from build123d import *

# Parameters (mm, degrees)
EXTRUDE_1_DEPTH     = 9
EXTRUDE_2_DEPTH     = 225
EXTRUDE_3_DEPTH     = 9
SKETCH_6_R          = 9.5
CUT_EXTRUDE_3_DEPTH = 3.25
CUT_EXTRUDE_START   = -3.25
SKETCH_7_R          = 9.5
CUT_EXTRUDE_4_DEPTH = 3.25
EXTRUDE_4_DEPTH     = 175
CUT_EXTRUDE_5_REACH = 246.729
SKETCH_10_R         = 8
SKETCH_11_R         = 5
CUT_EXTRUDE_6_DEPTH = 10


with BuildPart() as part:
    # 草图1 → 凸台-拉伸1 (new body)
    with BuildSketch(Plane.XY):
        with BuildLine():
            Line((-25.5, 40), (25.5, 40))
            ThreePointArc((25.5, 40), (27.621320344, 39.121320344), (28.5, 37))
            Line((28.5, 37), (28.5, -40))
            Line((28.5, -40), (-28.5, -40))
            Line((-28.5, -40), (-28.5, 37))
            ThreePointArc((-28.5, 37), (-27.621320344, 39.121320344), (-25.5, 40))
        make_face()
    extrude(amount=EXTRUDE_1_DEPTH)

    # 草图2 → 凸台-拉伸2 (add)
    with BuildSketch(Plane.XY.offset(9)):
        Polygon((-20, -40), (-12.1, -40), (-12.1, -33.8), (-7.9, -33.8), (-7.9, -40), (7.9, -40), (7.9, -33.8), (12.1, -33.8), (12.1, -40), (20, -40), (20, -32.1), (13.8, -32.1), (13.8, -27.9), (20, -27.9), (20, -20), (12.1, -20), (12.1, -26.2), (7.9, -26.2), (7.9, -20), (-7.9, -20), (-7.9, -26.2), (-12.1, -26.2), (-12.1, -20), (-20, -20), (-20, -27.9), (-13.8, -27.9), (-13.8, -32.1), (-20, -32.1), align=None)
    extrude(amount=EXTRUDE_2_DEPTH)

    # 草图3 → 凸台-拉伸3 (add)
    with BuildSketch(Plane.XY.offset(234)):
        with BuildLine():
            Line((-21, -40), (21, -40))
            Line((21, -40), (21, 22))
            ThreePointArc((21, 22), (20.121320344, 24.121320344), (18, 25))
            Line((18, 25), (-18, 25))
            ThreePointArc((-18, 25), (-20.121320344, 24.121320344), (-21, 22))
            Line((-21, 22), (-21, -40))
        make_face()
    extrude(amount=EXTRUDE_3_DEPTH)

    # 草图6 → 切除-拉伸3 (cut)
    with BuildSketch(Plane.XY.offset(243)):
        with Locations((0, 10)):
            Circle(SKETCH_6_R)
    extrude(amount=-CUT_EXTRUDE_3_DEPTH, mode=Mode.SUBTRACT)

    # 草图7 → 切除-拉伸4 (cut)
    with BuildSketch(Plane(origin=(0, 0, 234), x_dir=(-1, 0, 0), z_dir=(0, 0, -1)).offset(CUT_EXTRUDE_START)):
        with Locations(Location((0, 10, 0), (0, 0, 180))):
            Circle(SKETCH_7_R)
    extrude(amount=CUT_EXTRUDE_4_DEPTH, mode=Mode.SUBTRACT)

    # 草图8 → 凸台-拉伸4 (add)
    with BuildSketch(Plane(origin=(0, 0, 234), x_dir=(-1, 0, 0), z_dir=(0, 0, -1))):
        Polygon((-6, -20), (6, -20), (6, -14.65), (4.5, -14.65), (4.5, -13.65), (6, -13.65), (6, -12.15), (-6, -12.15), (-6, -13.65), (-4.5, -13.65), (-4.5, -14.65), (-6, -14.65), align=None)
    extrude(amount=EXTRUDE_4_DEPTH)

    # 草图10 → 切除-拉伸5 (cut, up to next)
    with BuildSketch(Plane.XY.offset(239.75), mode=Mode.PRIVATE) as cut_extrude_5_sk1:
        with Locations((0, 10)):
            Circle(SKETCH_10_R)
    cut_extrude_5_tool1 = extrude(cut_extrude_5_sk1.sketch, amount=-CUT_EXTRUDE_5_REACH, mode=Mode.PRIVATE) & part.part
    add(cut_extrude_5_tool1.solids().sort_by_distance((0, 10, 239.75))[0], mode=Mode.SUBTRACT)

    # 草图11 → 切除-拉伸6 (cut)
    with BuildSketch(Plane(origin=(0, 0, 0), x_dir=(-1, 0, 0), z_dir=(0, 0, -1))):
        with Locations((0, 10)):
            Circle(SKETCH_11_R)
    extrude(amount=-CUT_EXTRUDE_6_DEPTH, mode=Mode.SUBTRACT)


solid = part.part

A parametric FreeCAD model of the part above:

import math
import FreeCAD as App
import Part
import Sketcher
from FreeCAD import Vector


def add_polygon(sketch, points):
    """Adds a closed chain of lines whose ends are joined by coincident constraints."""
    first, n = sketch.GeometryCount, len(points)
    for a, b in zip(points, points[1:] + points[:1]):
        sketch.addGeometry(Part.LineSegment(App.Vector(*a, 0), App.Vector(*b, 0)), False)
    for i in range(n):
        sketch.addConstraint(Sketcher.Constraint("Coincident", first + i, 2, first + (i + 1) % n, 1))

doc = App.newDocument("Part")
body = doc.addObject("PartDesign::Body", "Body")

# Sketch on XY plane
sketch1 = doc.addObject("Sketcher::SketchObject", "Sketch")
body.addObject(sketch1)
sketch1.AttachmentSupport = (doc.XY_Plane, [""])
sketch1.MapMode = "FlatFace"
sketch1.addGeometry(Part.LineSegment(Vector(25.5, 40, 0), Vector(-25.5, 40, 0)), False)
sketch1.addGeometry(Part.ArcOfCircle(Part.Circle(Vector(-25.5, 37, 0), Vector(0, 0, 1), 3), math.radians(90), math.radians(180)), False)
sketch1.addGeometry(Part.LineSegment(Vector(-28.5, 37, 0), Vector(-28.5, -40, 0)), False)
sketch1.addGeometry(Part.LineSegment(Vector(-28.5, -40, 0), Vector(28.5, -40, 0)), False)
sketch1.addGeometry(Part.LineSegment(Vector(28.5, -40, 0), Vector(28.5, 37, 0)), False)
sketch1.addGeometry(Part.ArcOfCircle(Part.Circle(Vector(25.5, 37, 0), Vector(0, 0, 1), 3), math.radians(0), math.radians(90)), False)
sketch1.addConstraint(Sketcher.Constraint("Tangent", 0, 2, 1, 1))
sketch1.addConstraint(Sketcher.Constraint("Tangent", 1, 2, 2, 1))
sketch1.addConstraint(Sketcher.Constraint("Coincident", 2, 2, 3, 1))
sketch1.addConstraint(Sketcher.Constraint("Coincident", 3, 2, 4, 1))
sketch1.addConstraint(Sketcher.Constraint("Tangent", 4, 2, 5, 1))
sketch1.addConstraint(Sketcher.Constraint("Tangent", 5, 2, 0, 1))
sketch1.addConstraint(Sketcher.Constraint("Horizontal", 0))
sketch1.addConstraint(Sketcher.Constraint("Vertical", 2))
sketch1.addConstraint(Sketcher.Constraint("Horizontal", 3))
sketch1.addConstraint(Sketcher.Constraint("Vertical", 4))
sketch1.addConstraint(Sketcher.Constraint("Equal", 1, 5))
sketch1.addConstraint(Sketcher.Constraint("Radius", 1, 3.0))
sketch1.addConstraint(Sketcher.Constraint("DistanceX", 0, 2, 0, 1, 51.0))
sketch1.addConstraint(Sketcher.Constraint("DistanceY", 2, 2, 2, 1, 77.0))
sketch1.addConstraint(Sketcher.Constraint("DistanceY", -1, 1, 1, 3, 37.0))
sketch1.addConstraint(Sketcher.Constraint("DistanceX", 1, 3, -1, 1, 25.5))
pad1 = doc.addObject("PartDesign::Pad", "Pad")
body.addObject(pad1)
pad1.Profile = sketch1
pad1.Length = 9

# Sketch on XY plane
sketch2 = doc.addObject("Sketcher::SketchObject", "Sketch001")
body.addObject(sketch2)
sketch2.AttachmentSupport = (doc.XY_Plane, [""])
sketch2.MapMode = "FlatFace"
sketch2.AttachmentOffset = App.Placement(Vector(0, 0, 9), App.Rotation())
add_polygon(sketch2, [(-20, -40), (-12.1, -40), (-12.1, -33.8), (-7.9, -33.8), (-7.9, -40), (7.9, -40), (7.9, -33.8), (12.1, -33.8), (12.1, -40), (20, -40), (20, -32.1), (13.8, -32.1), (13.8, -27.9), (20, -27.9), (20, -20), (12.1, -20), (12.1, -26.2), (7.9, -26.2), (7.9, -20), (-7.9, -20), (-7.9, -26.2), (-12.1, -26.2), (-12.1, -20), (-20, -20), (-20, -27.9), (-13.8, -27.9), (-13.8, -32.1), (-20, -32.1)])  # lines 0-27
sketch2.addConstraint(Sketcher.Constraint("Horizontal", 0))
sketch2.addConstraint(Sketcher.Constraint("Vertical", 1))
sketch2.addConstraint(Sketcher.Constraint("Horizontal", 2))
sketch2.addConstraint(Sketcher.Constraint("Vertical", 3))
sketch2.addConstraint(Sketcher.Constraint("Horizontal", 4))
sketch2.addConstraint(Sketcher.Constraint("Vertical", 5))
sketch2.addConstraint(Sketcher.Constraint("Horizontal", 6))
sketch2.addConstraint(Sketcher.Constraint("Vertical", 7))
sketch2.addConstraint(Sketcher.Constraint("Horizontal", 8))
sketch2.addConstraint(Sketcher.Constraint("Vertical", 9))
sketch2.addConstraint(Sketcher.Constraint("Horizontal", 10))
sketch2.addConstraint(Sketcher.Constraint("Vertical", 11))
sketch2.addConstraint(Sketcher.Constraint("Horizontal", 12))
sketch2.addConstraint(Sketcher.Constraint("Vertical", 13))
sketch2.addConstraint(Sketcher.Constraint("Horizontal", 14))
sketch2.addConstraint(Sketcher.Constraint("Vertical", 15))
sketch2.addConstraint(Sketcher.Constraint("Horizontal", 16))
sketch2.addConstraint(Sketcher.Constraint("Vertical", 17))
sketch2.addConstraint(Sketcher.Constraint("Horizontal", 18))
sketch2.addConstraint(Sketcher.Constraint("Vertical", 19))
sketch2.addConstraint(Sketcher.Constraint("Horizontal", 20))
sketch2.addConstraint(Sketcher.Constraint("Vertical", 21))
sketch2.addConstraint(Sketcher.Constraint("Horizontal", 22))
sketch2.addConstraint(Sketcher.Constraint("Vertical", 23))
sketch2.addConstraint(Sketcher.Constraint("Horizontal", 24))
sketch2.addConstraint(Sketcher.Constraint("Vertical", 25))
sketch2.addConstraint(Sketcher.Constraint("Horizontal", 26))
sketch2.addConstraint(Sketcher.Constraint("Vertical", 27))
sketch2.addConstraint(Sketcher.Constraint("Symmetric", 2, 2, 5, 2, -2))
sketch2.addConstraint(Sketcher.Constraint("Symmetric", 0, 2, 7, 2, -2))
sketch2.addConstraint(Sketcher.Constraint("Symmetric", 16, 2, 19, 2, -2))
sketch2.addConstraint(Sketcher.Constraint("Symmetric", 14, 2, 21, 2, -2))
sketch2.addConstraint(Sketcher.Constraint("Symmetric", 12, 2, 23, 2, -2))
sketch2.addConstraint(Sketcher.Constraint("Symmetric", 10, 2, 25, 2, -2))
sketch2.addConstraint(Sketcher.Constraint("Horizontal", 0, 2, 3, 2))
sketch2.addConstraint(Sketcher.Constraint("Horizontal", 14, 2, 17, 2))
sketch2.addConstraint(Sketcher.Constraint("Vertical", 9, 2, 12, 2))
sketch2.addConstraint(Sketcher.Constraint("Vertical", 7, 2, 14, 2))
sketch2.addConstraint(Sketcher.Constraint("Vertical", 5, 2, 16, 2))
sketch2.addConstraint(Sketcher.Constraint("Vertical", 23, 2, 26, 2))
sketch2.addConstraint(Sketcher.Constraint("Equal", 26, 1))
sketch2.addConstraint(Sketcher.Constraint("Equal", 22, 9))
sketch2.addConstraint(Sketcher.Constraint("Equal", 20, 11))
sketch2.addConstraint(Sketcher.Constraint("Equal", 9, 13))
sketch2.addConstraint(Sketcher.Constraint("Equal", 7, 15))
sketch2.addConstraint(Sketcher.Constraint("DistanceX", 0, 1, 0, 2, 7.9))
sketch2.addConstraint(Sketcher.Constraint("DistanceX", 2, 1, 2, 2, 4.2))
sketch2.addConstraint(Sketcher.Constraint("DistanceX", 4, 1, 4, 2, 15.8))
sketch2.addConstraint(Sketcher.Constraint("DistanceX", 10, 2, 10, 1, 6.2))
sketch2.addConstraint(Sketcher.Constraint("DistanceY", 0, 2, -1, 1, 40.0))
pad2 = doc.addObject("PartDesign::Pad", "Pad001")
body.addObject(pad2)
pad2.Profile = sketch2
pad2.Length = 225

# Sketch on XY plane
sketch3 = doc.addObject("Sketcher::SketchObject", "Sketch002")
body.addObject(sketch3)
sketch3.AttachmentSupport = (doc.XY_Plane, [""])
sketch3.MapMode = "FlatFace"
sketch3.AttachmentOffset = App.Placement(Vector(0, 0, 234), App.Rotation())
sketch3.addGeometry(Part.LineSegment(Vector(-21, -40, 0), Vector(21, -40, 0)), False)
sketch3.addGeometry(Part.LineSegment(Vector(21, -40, 0), Vector(21, 22, 0)), False)
sketch3.addGeometry(Part.ArcOfCircle(Part.Circle(Vector(18, 22, 0), Vector(0, 0, 1), 3), math.radians(0), math.radians(90)), False)
sketch3.addGeometry(Part.LineSegment(Vector(18, 25, 0), Vector(-18, 25, 0)), False)
sketch3.addGeometry(Part.ArcOfCircle(Part.Circle(Vector(-18, 22, 0), Vector(0, 0, 1), 3), math.radians(90), math.radians(180)), False)
sketch3.addGeometry(Part.LineSegment(Vector(-21, 22, 0), Vector(-21, -40, 0)), False)
sketch3.addConstraint(Sketcher.Constraint("Coincident", 0, 2, 1, 1))
sketch3.addConstraint(Sketcher.Constraint("Tangent", 1, 2, 2, 1))
sketch3.addConstraint(Sketcher.Constraint("Tangent", 2, 2, 3, 1))
sketch3.addConstraint(Sketcher.Constraint("Tangent", 3, 2, 4, 1))
sketch3.addConstraint(Sketcher.Constraint("Tangent", 4, 2, 5, 1))
sketch3.addConstraint(Sketcher.Constraint("Coincident", 5, 2, 0, 1))
sketch3.addConstraint(Sketcher.Constraint("Horizontal", 0))
sketch3.addConstraint(Sketcher.Constraint("Vertical", 1))
sketch3.addConstraint(Sketcher.Constraint("Horizontal", 3))
sketch3.addConstraint(Sketcher.Constraint("Vertical", 5))
sketch3.addConstraint(Sketcher.Constraint("Equal", 2, 4))
sketch3.addConstraint(Sketcher.Constraint("Radius", 2, 3.0))
sketch3.addConstraint(Sketcher.Constraint("DistanceX", 0, 1, 0, 2, 42.0))
sketch3.addConstraint(Sketcher.Constraint("DistanceY", 1, 1, 1, 2, 62.0))
sketch3.addConstraint(Sketcher.Constraint("DistanceX", -1, 1, 2, 3, 18.0))
sketch3.addConstraint(Sketcher.Constraint("DistanceY", -1, 1, 2, 3, 22.0))
pad3 = doc.addObject("PartDesign::Pad", "Pad002")
body.addObject(pad3)
pad3.Profile = sketch3
pad3.Length = 9

# Sketch on XY plane
sketch4 = doc.addObject("Sketcher::SketchObject", "Sketch003")
body.addObject(sketch4)
sketch4.AttachmentSupport = (doc.XY_Plane, [""])
sketch4.MapMode = "FlatFace"
sketch4.AttachmentOffset = App.Placement(Vector(0, 0, 243), App.Rotation())
sketch4.addGeometry(Part.Circle(Vector(0, 10, 0), Vector(0, 0, 1), 10), False)
sketch4.addConstraint(Sketcher.Constraint("PointOnObject", 0, 3, -2))
sketch4.addConstraint(Sketcher.Constraint("Diameter", 0, 19.0))
sketch4.addConstraint(Sketcher.Constraint("DistanceY", -1, 1, 0, 3, 10.0))
pocket1 = doc.addObject("PartDesign::Pocket", "Pocket")
body.addObject(pocket1)
pocket1.Profile = sketch4
pocket1.Length = 3.25

# Sketch on XY plane
sketch5 = doc.addObject("Sketcher::SketchObject", "Sketch004")
body.addObject(sketch5)
sketch5.AttachmentSupport = (doc.XY_Plane, [""])
sketch5.MapMode = "FlatFace"
sketch5.AttachmentOffset = App.Placement(Vector(0, 0, 237.25), App.Rotation())
sketch5.addGeometry(Part.Circle(Vector(0, 10, 0), Vector(0, 0, 1), 10), False)
sketch5.addConstraint(Sketcher.Constraint("PointOnObject", 0, 3, -2))
sketch5.addConstraint(Sketcher.Constraint("Diameter", 0, 19.0))
sketch5.addConstraint(Sketcher.Constraint("DistanceY", -1, 1, 0, 3, 10.0))
pocket2 = doc.addObject("PartDesign::Pocket", "Pocket001")
body.addObject(pocket2)
pocket2.Profile = sketch5
pocket2.Length = 3.25

# Sketch on XY plane
sketch6 = doc.addObject("Sketcher::SketchObject", "Sketch005")
body.addObject(sketch6)
sketch6.AttachmentSupport = (doc.XY_Plane, [""])
sketch6.MapMode = "FlatFace"
sketch6.AttachmentOffset = App.Placement(Vector(0, 0, 234), App.Rotation())
add_polygon(sketch6, [(6, -20), (-6, -20), (-6, -14.7), (-4.5, -14.7), (-4.5, -13.7), (-6, -13.7), (-6, -12.2), (6, -12.2), (6, -13.7), (4.5, -13.7), (4.5, -14.7), (6, -14.7)])  # lines 0-11
sketch6.addConstraint(Sketcher.Constraint("Horizontal", 0))
sketch6.addConstraint(Sketcher.Constraint("Vertical", 1))
sketch6.addConstraint(Sketcher.Constraint("Horizontal", 2))
sketch6.addConstraint(Sketcher.Constraint("Vertical", 3))
sketch6.addConstraint(Sketcher.Constraint("Horizontal", 4))
sketch6.addConstraint(Sketcher.Constraint("Vertical", 5))
sketch6.addConstraint(Sketcher.Constraint("Horizontal", 6))
sketch6.addConstraint(Sketcher.Constraint("Vertical", 7))
sketch6.addConstraint(Sketcher.Constraint("Horizontal", 8))
sketch6.addConstraint(Sketcher.Constraint("Vertical", 9))
sketch6.addConstraint(Sketcher.Constraint("Horizontal", 10))
sketch6.addConstraint(Sketcher.Constraint("Vertical", 11))
sketch6.addConstraint(Sketcher.Constraint("Symmetric", 4, 2, 7, 2, -2))
sketch6.addConstraint(Sketcher.Constraint("Symmetric", 2, 2, 9, 2, -2))
sketch6.addConstraint(Sketcher.Constraint("Vertical", 1, 2, 4, 2))
sketch6.addConstraint(Sketcher.Constraint("Vertical", 7, 2, 10, 2))
sketch6.addConstraint(Sketcher.Constraint("Equal", 10, 5))
sketch6.addConstraint(Sketcher.Constraint("DistanceX", 0, 2, 0, 1, 12.0))
sketch6.addConstraint(Sketcher.Constraint("DistanceY", 3, 1, 3, 2, 1.0))
sketch6.addConstraint(Sketcher.Constraint("DistanceX", 2, 1, 2, 2, 1.5))
sketch6.addConstraint(Sketcher.Constraint("DistanceY", 0, 2, -1, 1, 20.0))
sketch6.addConstraint(Sketcher.Constraint("DistanceY", 1, 1, 1, 2, 5.35))
pad4 = doc.addObject("PartDesign::Pad", "Pad003")
body.addObject(pad4)
pad4.Profile = sketch6
pad4.Length = 175
pad4.Reversed = True

# Sketch on XY plane
sketch7 = doc.addObject("Sketcher::SketchObject", "Sketch006")
body.addObject(sketch7)
sketch7.AttachmentSupport = (doc.XY_Plane, [""])
sketch7.MapMode = "FlatFace"
sketch7.AttachmentOffset = App.Placement(Vector(0, 0, 239.75), App.Rotation())
sketch7.addGeometry(Part.Circle(Vector(0, 10, 0), Vector(0, 0, 1), 8), False)
sketch7.addConstraint(Sketcher.Constraint("PointOnObject", 0, 3, -2))
sketch7.addConstraint(Sketcher.Constraint("Diameter", 0, 16.0))
sketch7.addConstraint(Sketcher.Constraint("DistanceY", -1, 1, 0, 3, 10.0))
pocket3 = doc.addObject("PartDesign::Pocket", "Pocket002")
body.addObject(pocket3)
pocket3.Profile = sketch7
pocket3.Type = "UpToFirst"

# Sketch on XY plane
sketch8 = doc.addObject("Sketcher::SketchObject", "Sketch007")
body.addObject(sketch8)
sketch8.AttachmentSupport = (doc.XY_Plane, [""])
sketch8.MapMode = "FlatFace"
sketch8.addGeometry(Part.Circle(Vector(0, 10, 0), Vector(0, 0, 1), 5), False)
sketch8.addConstraint(Sketcher.Constraint("PointOnObject", 0, 3, -2))
sketch8.addConstraint(Sketcher.Constraint("Diameter", 0, 10.0))
sketch8.addConstraint(Sketcher.Constraint("DistanceY", -1, 1, 0, 3, 10.0))
pocket4 = doc.addObject("PartDesign::Pocket", "Pocket003")
body.addObject(pocket4)
pocket4.Profile = sketch8
pocket4.Length = 10
pocket4.Reversed = True

doc.recompute()
